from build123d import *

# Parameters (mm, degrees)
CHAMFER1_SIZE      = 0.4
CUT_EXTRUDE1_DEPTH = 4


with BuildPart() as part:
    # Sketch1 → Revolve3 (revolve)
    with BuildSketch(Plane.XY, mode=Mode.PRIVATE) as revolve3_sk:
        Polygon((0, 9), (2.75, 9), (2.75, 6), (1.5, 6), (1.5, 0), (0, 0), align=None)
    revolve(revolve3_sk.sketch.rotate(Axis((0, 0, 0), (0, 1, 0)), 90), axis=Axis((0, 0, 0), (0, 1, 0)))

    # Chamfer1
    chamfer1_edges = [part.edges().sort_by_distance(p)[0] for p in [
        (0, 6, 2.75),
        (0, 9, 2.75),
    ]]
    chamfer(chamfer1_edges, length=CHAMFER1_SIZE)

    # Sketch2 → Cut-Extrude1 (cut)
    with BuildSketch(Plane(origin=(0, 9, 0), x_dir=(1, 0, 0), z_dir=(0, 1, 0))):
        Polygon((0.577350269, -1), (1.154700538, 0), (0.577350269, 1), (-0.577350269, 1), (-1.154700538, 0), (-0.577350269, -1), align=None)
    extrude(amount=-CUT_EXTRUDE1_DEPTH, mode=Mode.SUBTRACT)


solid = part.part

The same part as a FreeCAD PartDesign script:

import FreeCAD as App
import Part
import Sketcher

V = App.Vector
Q = App.Units.Quantity


def edges_at(feature, points):
    """Names of the edges that pass closest to the given points."""
    edges = feature.Shape.Edges
    near = lambda p: min(range(len(edges)), key=lambda i: edges[i].distToShape(Part.Vertex(*p))[0])
    return sorted({f"Edge{near(p) + 1}" for p in points})

doc = App.newDocument("Part")
body = doc.addObject("PartDesign::Body", "Body")

# Sketch on XY plane
sketch1 = body.newObject("Sketcher::SketchObject", "Sketch")
sketch1.AttachmentSupport = (doc.getObject("XY_Plane"), [""])
sketch1.MapMode = "FlatFace"
sketch1.addGeometry([
    Part.LineSegment(V(2.8, 9, 0), V(0, 9, 0)),  # 0
    Part.LineSegment(V(0, 9, 0), V(0, 0, 0)),  # 1
    Part.LineSegment(V(0, 0, 0), V(1.5, 0, 0)),  # 2
    Part.LineSegment(V(1.5, 0, 0), V(1.5, 6, 0)),  # 3
    Part.LineSegment(V(1.5, 6, 0), V(2.8, 6, 0)),  # 4
    Part.LineSegment(V(2.8, 6, 0), V(2.8, 9, 0)),  # 5
], False)
sketch1.addConstraint([
    Sketcher.Constraint("Coincident", 0, 2, 1, 1),
    Sketcher.Constraint("Coincident", 1, 2, 2, 1),
    Sketcher.Constraint("Coincident", 2, 2, 3, 1),
    Sketcher.Constraint("Coincident", 3, 2, 4, 1),
    Sketcher.Constraint("Coincident", 4, 2, 5, 1),
    Sketcher.Constraint("Coincident", 5, 2, 0, 1),
    Sketcher.Constraint("Horizontal", 0),
    Sketcher.Constraint("Vertical", 1),
    Sketcher.Constraint("Horizontal", 2),
    Sketcher.Constraint("Vertical", 3),
    Sketcher.Constraint("Horizontal", 4),
    Sketcher.Constraint("Vertical", 5),
    Sketcher.Constraint("Coincident", 1, 2, -1, 1),
    Sketcher.Constraint("DistanceY", 1, 2, 1, 1, Q("9 mm")),
    Sketcher.Constraint("DistanceY", 3, 1, 3, 2, Q("6 mm")),
    Sketcher.Constraint("DistanceX", 2, 1, 2, 2, Q("1.5 mm")),
    Sketcher.Constraint("DistanceX", 0, 2, 0, 1, Q("2.75 mm")),
])
revolution = body.newObject("PartDesign::Revolution", "Revolution")
revolution.Profile = sketch1
revolution.ReferenceAxis = (sketch1, ["V_Axis"])
revolution.Angle = 360
doc.recompute()

chamfer = body.newObject("PartDesign::Chamfer", "Chamfer")
chamfer.Base = (revolution, edges_at(revolution, [(0, 6, 2.75), (0, 9, 2.75)]))
chamfer.Size = 0.4

# Sketch on XZ plane
sketch2 = body.newObject("Sketcher::SketchObject", "Sketch001")
sketch2.AttachmentSupport = (doc.getObject("XZ_Plane"), [""])
sketch2.MapMode = "FlatFace"
sketch2.AttachmentOffset = App.Placement(V(0, 0, -9), App.Rotation())
sketch2.addGeometry([
    Part.LineSegment(V(0.6, 1, 0), V(1.2, 0, 0)),  # 0
    Part.LineSegment(V(1.2, 0, 0), V(0.6, -1, 0)),  # 1
    Part.LineSegment(V(0.6, -1, 0), V(-0.6, -1, 0)),  # 2
    Part.LineSegment(V(-0.6, -1, 0), V(-1.2, 0, 0)),  # 3
    Part.LineSegment(V(-1.2, 0, 0), V(-0.6, 1, 0)),  # 4
    Part.LineSegment(V(-0.6, 1, 0), V(0.6, 1, 0)),  # 5
], False)
sketch2.addConstraint([
    Sketcher.Constraint("Coincident", 0, 2, 1, 1),
    Sketcher.Constraint("Coincident", 1, 2, 2, 1),
    Sketcher.Constraint("Coincident", 2, 2, 3, 1),
    Sketcher.Constraint("Coincident", 3, 2, 4, 1),
    Sketcher.Constraint("Coincident", 4, 2, 5, 1),
    Sketcher.Constraint("Coincident", 5, 2, 0, 1),
    Sketcher.Constraint("Horizontal", 2),
    Sketcher.Constraint("Horizontal", 5),
    Sketcher.Constraint("Symmetric", 0, 2, 3, 2, -1, 1),
    Sketcher.Constraint("Symmetric", 1, 2, 4, 2, -1, 1),
    Sketcher.Constraint("PointOnObject", 0, 2, -1),
    Sketcher.Constraint("Parallel", 0, 3),
    Sketcher.Constraint("Vertical", 2, 2, 4, 2),
    Sketcher.Constraint("Angle", 0, Q("-60 deg")),
    Sketcher.Constraint("DistanceY", 1, 2, -1, 1, Q("1 mm")),
    Sketcher.Constraint("DistanceX", 2, 2, 2, 1, Q("1.154701 mm")),
])
pocket1 = body.newObject("PartDesign::Pocket", "Pocket")
pocket1.Profile = sketch2
pocket1.Length = 4
pocket1.Reversed = True

doc.recompute()
